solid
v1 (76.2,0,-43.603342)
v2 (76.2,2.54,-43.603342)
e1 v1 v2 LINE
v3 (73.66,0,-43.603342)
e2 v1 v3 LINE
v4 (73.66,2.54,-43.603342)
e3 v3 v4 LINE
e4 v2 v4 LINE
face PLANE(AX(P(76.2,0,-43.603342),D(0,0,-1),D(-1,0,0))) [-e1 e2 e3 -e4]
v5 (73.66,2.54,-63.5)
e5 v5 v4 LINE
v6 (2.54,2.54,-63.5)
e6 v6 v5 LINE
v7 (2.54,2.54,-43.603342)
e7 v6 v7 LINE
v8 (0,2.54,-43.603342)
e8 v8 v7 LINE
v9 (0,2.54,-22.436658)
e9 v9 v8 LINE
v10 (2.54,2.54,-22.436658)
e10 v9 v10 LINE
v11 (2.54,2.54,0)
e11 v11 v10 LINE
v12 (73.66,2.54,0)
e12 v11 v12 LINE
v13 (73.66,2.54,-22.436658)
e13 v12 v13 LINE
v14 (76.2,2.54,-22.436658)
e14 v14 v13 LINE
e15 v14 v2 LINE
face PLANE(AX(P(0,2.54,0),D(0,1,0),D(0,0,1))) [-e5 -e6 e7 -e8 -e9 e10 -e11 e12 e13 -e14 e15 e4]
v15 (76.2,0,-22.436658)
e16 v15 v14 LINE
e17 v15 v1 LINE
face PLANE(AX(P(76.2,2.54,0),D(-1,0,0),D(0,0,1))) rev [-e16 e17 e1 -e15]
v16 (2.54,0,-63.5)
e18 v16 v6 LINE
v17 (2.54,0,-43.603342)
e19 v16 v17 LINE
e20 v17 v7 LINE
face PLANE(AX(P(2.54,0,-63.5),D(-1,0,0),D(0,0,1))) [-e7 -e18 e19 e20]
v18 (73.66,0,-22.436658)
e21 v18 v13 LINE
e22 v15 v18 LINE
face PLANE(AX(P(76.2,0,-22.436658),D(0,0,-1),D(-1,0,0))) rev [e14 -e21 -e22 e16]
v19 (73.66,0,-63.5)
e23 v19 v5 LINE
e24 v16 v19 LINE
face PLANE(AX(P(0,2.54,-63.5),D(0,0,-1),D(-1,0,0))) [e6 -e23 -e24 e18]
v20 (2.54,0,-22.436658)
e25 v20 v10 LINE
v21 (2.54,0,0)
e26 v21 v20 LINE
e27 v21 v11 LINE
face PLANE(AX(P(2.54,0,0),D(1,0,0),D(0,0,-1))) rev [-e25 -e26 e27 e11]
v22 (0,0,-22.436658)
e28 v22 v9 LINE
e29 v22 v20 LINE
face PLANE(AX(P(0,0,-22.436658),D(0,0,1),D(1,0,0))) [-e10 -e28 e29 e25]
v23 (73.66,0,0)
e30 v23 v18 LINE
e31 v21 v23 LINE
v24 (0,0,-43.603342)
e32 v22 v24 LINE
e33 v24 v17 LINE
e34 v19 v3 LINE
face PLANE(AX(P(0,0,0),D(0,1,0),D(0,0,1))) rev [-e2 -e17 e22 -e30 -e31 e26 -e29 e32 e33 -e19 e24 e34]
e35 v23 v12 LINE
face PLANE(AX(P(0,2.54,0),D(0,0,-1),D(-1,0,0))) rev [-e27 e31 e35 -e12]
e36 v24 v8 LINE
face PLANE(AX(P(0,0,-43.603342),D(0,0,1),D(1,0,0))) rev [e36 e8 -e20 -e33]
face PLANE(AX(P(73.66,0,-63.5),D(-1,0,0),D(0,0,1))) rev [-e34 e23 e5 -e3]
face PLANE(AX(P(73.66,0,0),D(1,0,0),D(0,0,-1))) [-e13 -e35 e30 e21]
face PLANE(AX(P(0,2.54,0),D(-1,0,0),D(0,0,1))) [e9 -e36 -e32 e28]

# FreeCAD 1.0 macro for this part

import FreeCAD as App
import Part
import Sketcher

V = App.Vector
Q = App.Units.Quantity


def add_polygon(sketch, points):
    """Adds a closed chain of lines whose ends are joined by coincident constraints."""
    first, n = sketch.GeometryCount, len(points)
    for a, b in zip(points, points[1:] + points[:1]):
        sketch.addGeometry(Part.LineSegment(App.Vector(*a, 0), App.Vector(*b, 0)), False)
    for i in range(n):
        sketch.addConstraint(Sketcher.Constraint("Coincident", first + i, 2, first + (i + 1) % n, 1))

doc = App.newDocument("Part")
params = doc.addObject("Spreadsheet::Sheet", "Params")
for row, (alias, value) in enumerate([
    ("sketch1_width", "3 in"),
    ("sketch1_height", "2.5 in"),
    ("pad1_length", "0.1 in"),
    ("sketch2_width", "0.1 in"),
    ("sketch3_width", "0.1 in"),
], start=1):
    params.set(f"A{row}", alias)
    params.set(f"B{row}", "=" + value)
    params.setAlias(f"B{row}", alias)

body = doc.addObject("PartDesign::Body", "Body")

sketch1 = doc.addObject("Sketcher::SketchObject", "Sketch")
body.addObject(sketch1)
sketch1.AttachmentSupport = (doc.XZ_Plane, [""])
sketch1.MapMode = "FlatFace"
add_polygon(sketch1, [(0, -64), (0, 0), (76, 0), (76, -64)])
sketch1.addConstraint([
    Sketcher.Constraint("Vertical", 0),
    Sketcher.Constraint("Horizontal", 1),
    Sketcher.Constraint("Vertical", 2),
    Sketcher.Constraint("Horizontal", 3),
    Sketcher.Constraint("Coincident", 0, 2, -1, 1),
    Sketcher.Constraint("DistanceX", 1, 1, 1, 2, Q("3 in")),
    Sketcher.Constraint("DistanceY", 0, 1, 0, 2, Q("2.5 in")),
])
sketch1.setExpression("Constraints[9]", "Params.sketch1_width")
sketch1.setExpression("Constraints[10]", "Params.sketch1_height")
pad1 = doc.addObject("PartDesign::Pad", "Pad")
body.addObject(pad1)
pad1.Profile = sketch1
pad1.setExpression("Length", "Params.pad1_length")
pad1.Reversed = True

sketch2 = doc.addObject("Sketcher::SketchObject", "Sketch001")
body.addObject(sketch2)
sketch2.AttachmentSupport = (doc.XZ_Plane, [""])
sketch2.MapMode = "FlatFace"
sketch2.AttachmentOffset = App.Placement(V(0, 0, -0.1 * 25.4), App.Rotation())
add_polygon(sketch2, [(0, -63.5), (0, -43.6), (2.5, -43.6), (2.5, -63.5)])
sketch2.addConstraint([
    Sketcher.Constraint("Vertical", 0),
    Sketcher.Constraint("Horizontal", 1),
    Sketcher.Constraint("Vertical", 2),
    Sketcher.Constraint("Horizontal", 3),
    Sketcher.Constraint("PointOnObject", 0, 2, -2),
    Sketcher.Constraint("DistanceX", 1, 1, 1, 2, Q("0.1 in")),
    Sketcher.Constraint("DistanceY", 2, 2, -1, 1, Q("2.5 in")),
    Sketcher.Constraint("DistanceY", 0, 1, 0, 2, Q("19.896658 mm")),
])
sketch2.setExpression("Constraints[9]", "Params.sketch2_width")
pocket1 = doc.addObject("PartDesign::Pocket", "Pocket")
body.addObject(pocket1)
pocket1.Profile = sketch2
pocket1.Type = "ThroughAll"
pocket1.Reversed = True

sketch3 = doc.addObject("Sketcher::SketchObject", "Sketch002")
body.addObject(sketch3)
sketch3.AttachmentSupport = (doc.XZ_Plane, [""])
sketch3.MapMode = "FlatFace"
sketch3.AttachmentOffset = App.Placement(V(0, 0, -0.1 * 25.4), App.Rotation())
add_polygon(sketch3, [(0, -22.4), (0, 0), (2.5, 0), (2.5, -22.4)])
add_polygon(sketch3, [(73.7, -63.5), (73.7, -43.6), (76.2, -43.6), (76.2, -63.5)])
add_polygon(sketch3, [(73.7, -22.4), (73.7, 0), (76.2, 0), (76.2, -22.4)])
sketch3.addConstraint([
    Sketcher.Constraint("Vertical", 0),
    Sketcher.Constraint("Horizontal", 1),
    Sketcher.Constraint("Vertical", 2),
    Sketcher.Constraint("Horizontal", 3),
    Sketcher.Constraint("Vertical", 4),
    Sketcher.Constraint("Horizontal", 5),
    Sketcher.Constraint("Vertical", 6),
    Sketcher.Constraint("Horizontal", 7),
    Sketcher.Constraint("Vertical", 8),
    Sketcher.Constraint("Horizontal", 9),
    Sketcher.Constraint("Vertical", 10),
    Sketcher.Constraint("Horizontal", 11),
    Sketcher.Constraint("Coincident", 0, 2, -1, 1),
    Sketcher.Constraint("PointOnObject", 8, 2, -1),
    Sketcher.Constraint("Horizontal", 3, 2, 10, 2),
    Sketcher.Constraint("Vertical", 7, 2, 8, 2),
    Sketcher.Constraint("Vertical", 6, 2, 9, 2),
    Sketcher.Constraint("Equal", 3, 5),
    Sketcher.Constraint("DistanceX", 1, 1, 1, 2, Q("0.1 in")),
    Sketcher.Constraint("DistanceX", -1, 1, 5, 2, Q("3 in")),
    Sketcher.Constraint("DistanceY", 6, 2, -1, 1, Q("2.5 in")),
    Sketcher.Constraint("DistanceY", 0, 1, 0, 2, Q("22.436658 mm")),
    Sketcher.Constraint("DistanceY", 4, 1, 4, 2, Q("19.896658 mm")),
])
sketch3.setExpression("Constraints[30]", "Params.sketch3_width")
pocket2 = doc.addObject("PartDesign::Pocket", "Pocket001")
body.addObject(pocket2)
pocket2.Profile = sketch3
pocket2.Type = "ThroughAll"
pocket2.Reversed = True

doc.recompute()
